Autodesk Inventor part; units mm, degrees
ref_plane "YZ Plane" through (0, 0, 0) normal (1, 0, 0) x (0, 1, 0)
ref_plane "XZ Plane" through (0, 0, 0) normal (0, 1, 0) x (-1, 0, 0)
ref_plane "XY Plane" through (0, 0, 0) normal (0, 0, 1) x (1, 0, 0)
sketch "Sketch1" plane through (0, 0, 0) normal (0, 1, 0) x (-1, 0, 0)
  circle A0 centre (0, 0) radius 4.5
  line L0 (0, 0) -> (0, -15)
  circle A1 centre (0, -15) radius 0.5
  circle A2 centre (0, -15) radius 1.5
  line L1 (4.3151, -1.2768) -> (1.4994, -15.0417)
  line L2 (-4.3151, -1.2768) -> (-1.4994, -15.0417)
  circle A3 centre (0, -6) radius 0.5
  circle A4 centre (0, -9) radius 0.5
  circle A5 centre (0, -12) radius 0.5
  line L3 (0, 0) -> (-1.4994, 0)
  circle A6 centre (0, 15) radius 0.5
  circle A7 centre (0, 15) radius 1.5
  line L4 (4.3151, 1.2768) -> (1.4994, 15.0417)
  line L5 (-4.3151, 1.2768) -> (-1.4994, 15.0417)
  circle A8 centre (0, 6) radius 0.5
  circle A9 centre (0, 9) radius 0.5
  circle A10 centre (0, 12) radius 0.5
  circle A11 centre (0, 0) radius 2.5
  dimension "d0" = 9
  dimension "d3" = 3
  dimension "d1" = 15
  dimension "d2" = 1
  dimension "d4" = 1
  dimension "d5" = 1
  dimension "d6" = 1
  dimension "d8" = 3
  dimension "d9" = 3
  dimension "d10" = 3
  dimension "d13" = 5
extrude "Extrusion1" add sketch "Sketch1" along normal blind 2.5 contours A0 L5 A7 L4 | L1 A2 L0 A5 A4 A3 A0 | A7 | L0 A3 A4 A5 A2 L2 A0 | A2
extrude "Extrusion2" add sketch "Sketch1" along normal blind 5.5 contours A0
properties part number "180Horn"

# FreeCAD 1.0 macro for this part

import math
import FreeCAD as App
import Part
import Sketcher
Q = App.Units.Quantity

doc = App.newDocument("Part")
body = doc.addObject("PartDesign::Body", "Body")
body.AllowCompound = True

# Sketch on XZ plane
sketch1 = doc.addObject("Sketcher::SketchObject", "Sketch")
body.addObject(sketch1)
sketch1.AttachmentSupport = (doc.XZ_Plane, [""])
sketch1.MapMode = "FlatFace"
sketch1.addGeometry([
    Part.ArcOfCircle(Part.Circle(App.Vector(0, 0, 0), App.Vector(0, 0, 1), 4.5), math.radians(16), math.radians(164)),  # 0
    Part.LineSegment(App.Vector(-4.3, 1.3, 0), App.Vector(-1.5, 15, 0)),  # 1
    Part.ArcOfCircle(Part.Circle(App.Vector(0, 15, 0), App.Vector(0, 0, 1), 1.5), math.radians(2), math.radians(178)),  # 2
    Part.LineSegment(App.Vector(1.5, 15, 0), App.Vector(4.3, 1.3, 0)),  # 3
    Part.Circle(App.Vector(0, 6, 0), App.Vector(0, 0, 1), 0.5),  # 4
    Part.Circle(App.Vector(0, 9, 0), App.Vector(0, 0, 1), 0.5),  # 5
    Part.Circle(App.Vector(0, 12, 0), App.Vector(0, 0, 1), 0.5),  # 6
    Part.Circle(App.Vector(0, 15, 0), App.Vector(0, 0, 1), 0.5),  # 7
    Part.LineSegment(App.Vector(-1.5, -15, 0), App.Vector(-4.3, -1.3, 0)),  # 8
    Part.ArcOfCircle(Part.Circle(App.Vector(0, 0, 0), App.Vector(0, 0, 1), 4.5), math.radians(-164), math.radians(-16)),  # 9
    Part.LineSegment(App.Vector(4.3, -1.3, 0), App.Vector(1.5, -15, 0)),  # 10
    Part.ArcOfCircle(Part.Circle(App.Vector(0, -15, 0), App.Vector(0, 0, 1), 1.5), math.radians(-178), math.radians(-2)),  # 11
    Part.Circle(App.Vector(0, -12, 0), App.Vector(0, 0, 1), 0.5),  # 12
    Part.Circle(App.Vector(0, -9, 0), App.Vector(0, 0, 1), 0.5),  # 13
    Part.Circle(App.Vector(0, -6, 0), App.Vector(0, 0, 1), 0.5),  # 14
    Part.Circle(App.Vector(0, -15, 0), App.Vector(0, 0, 1), 0.5),  # 15
], False)
sketch1.addConstraint([
    Sketcher.Constraint("Coincident", 0, 2, 1, 1),
    Sketcher.Constraint("Coincident", 1, 2, 2, 2),
    Sketcher.Constraint("Coincident", 2, 1, 3, 1),
    Sketcher.Constraint("Coincident", 3, 2, 0, 1),
    Sketcher.Constraint("Coincident", 8, 2, 9, 1),
    Sketcher.Constraint("Coincident", 9, 2, 10, 1),
    Sketcher.Constraint("Coincident", 10, 2, 11, 2),
    Sketcher.Constraint("Coincident", 11, 1, 8, 1),
    Sketcher.Constraint("Coincident", 0, 3, -1, 1),
    Sketcher.Constraint("Coincident", 9, 3, -1, 1),
    Sketcher.Constraint("Coincident", 7, 3, 2, 3),
    Sketcher.Constraint("Coincident", 15, 3, 11, 3),
    Sketcher.Constraint("Equal", 4, 5),
    Sketcher.Constraint("Equal", 5, 6),
    Sketcher.Constraint("Equal", 6, 7),
    Sketcher.Constraint("Equal", 0, 9),
    Sketcher.Constraint("Equal", 2, 11),
    Sketcher.Constraint("Equal", 7, 12),
    Sketcher.Constraint("Equal", 12, 13),
    Sketcher.Constraint("Equal", 13, 14),
    Sketcher.Constraint("Equal", 14, 15),
    Sketcher.Constraint("Symmetric", 2, 3, 11, 3, -1, 1),
    Sketcher.Constraint("Symmetric", 6, 3, 12, 3, -1, 1),
    Sketcher.Constraint("Symmetric", 5, 3, 13, 3, -1, 1),
    Sketcher.Constraint("Symmetric", 4, 3, 14, 3, -1, 1),
    Sketcher.Constraint("Symmetric", 1, 2, 2, 1, -2),
    Sketcher.Constraint("PointOnObject", 4, 3, -2),
    Sketcher.Constraint("PointOnObject", 5, 3, -2),
    Sketcher.Constraint("PointOnObject", 6, 3, -2),
    Sketcher.Constraint("Parallel", 3, 8),
    Sketcher.Constraint("Parallel", 1, 10),
    Sketcher.Constraint("Horizontal", 0, 2, 3, 2),
    Sketcher.Constraint("Horizontal", 8, 2, 9, 2),
    Sketcher.Constraint("Vertical", 0, 2, 8, 2),
    Sketcher.Constraint("Diameter", 4, Q("1 mm")),
    Sketcher.Constraint("Radius", 0, Q("4.5 mm")),
    Sketcher.Constraint("Radius", 2, Q("1.5 mm")),
    Sketcher.Constraint("DistanceY", -1, 1, 2, 3, Q("15 mm")),
    Sketcher.Constraint("DistanceY", -1, 1, 5, 3, Q("9 mm")),
    Sketcher.Constraint("DistanceY", 4, 3, 2, 3, Q("9 mm")),
    Sketcher.Constraint("DistanceY", 6, 3, 2, 3, Q("3 mm")),
    Sketcher.Constraint("Angle", 1, Q("78.4393 deg")),
    Sketcher.Constraint("Distance", 1, Q("14.05 mm")),
])
pad1 = doc.addObject("PartDesign::Pad", "Pad")
body.addObject(pad1)
pad1.Profile = sketch1
pad1.Length = 2.5
pad1.Reversed = True

# Sketch on XZ plane
sketch2 = doc.addObject("Sketcher::SketchObject", "Sketch001")
body.addObject(sketch2)
sketch2.AttachmentSupport = (doc.XZ_Plane, [""])
sketch2.MapMode = "FlatFace"
sketch2.addGeometry([
    Part.Circle(App.Vector(0, 0, 0), App.Vector(0, 0, 1), 4.5),
    Part.Circle(App.Vector(0, 0, 0), App.Vector(0, 0, 1), 2.5),
], False)
sketch2.addConstraint([
    Sketcher.Constraint("Coincident", 0, 3, -1, 1),
    Sketcher.Constraint("Coincident", 1, 3, -1, 1),
    Sketcher.Constraint("Diameter", 0, Q("9 mm")),
    Sketcher.Constraint("Diameter", 1, Q("5 mm")),
])
pad2 = doc.addObject("PartDesign::Pad", "Pad001")
body.addObject(pad2)
pad2.Profile = sketch2
pad2.Length = 5.5
pad2.Reversed = True

doc.recompute()
